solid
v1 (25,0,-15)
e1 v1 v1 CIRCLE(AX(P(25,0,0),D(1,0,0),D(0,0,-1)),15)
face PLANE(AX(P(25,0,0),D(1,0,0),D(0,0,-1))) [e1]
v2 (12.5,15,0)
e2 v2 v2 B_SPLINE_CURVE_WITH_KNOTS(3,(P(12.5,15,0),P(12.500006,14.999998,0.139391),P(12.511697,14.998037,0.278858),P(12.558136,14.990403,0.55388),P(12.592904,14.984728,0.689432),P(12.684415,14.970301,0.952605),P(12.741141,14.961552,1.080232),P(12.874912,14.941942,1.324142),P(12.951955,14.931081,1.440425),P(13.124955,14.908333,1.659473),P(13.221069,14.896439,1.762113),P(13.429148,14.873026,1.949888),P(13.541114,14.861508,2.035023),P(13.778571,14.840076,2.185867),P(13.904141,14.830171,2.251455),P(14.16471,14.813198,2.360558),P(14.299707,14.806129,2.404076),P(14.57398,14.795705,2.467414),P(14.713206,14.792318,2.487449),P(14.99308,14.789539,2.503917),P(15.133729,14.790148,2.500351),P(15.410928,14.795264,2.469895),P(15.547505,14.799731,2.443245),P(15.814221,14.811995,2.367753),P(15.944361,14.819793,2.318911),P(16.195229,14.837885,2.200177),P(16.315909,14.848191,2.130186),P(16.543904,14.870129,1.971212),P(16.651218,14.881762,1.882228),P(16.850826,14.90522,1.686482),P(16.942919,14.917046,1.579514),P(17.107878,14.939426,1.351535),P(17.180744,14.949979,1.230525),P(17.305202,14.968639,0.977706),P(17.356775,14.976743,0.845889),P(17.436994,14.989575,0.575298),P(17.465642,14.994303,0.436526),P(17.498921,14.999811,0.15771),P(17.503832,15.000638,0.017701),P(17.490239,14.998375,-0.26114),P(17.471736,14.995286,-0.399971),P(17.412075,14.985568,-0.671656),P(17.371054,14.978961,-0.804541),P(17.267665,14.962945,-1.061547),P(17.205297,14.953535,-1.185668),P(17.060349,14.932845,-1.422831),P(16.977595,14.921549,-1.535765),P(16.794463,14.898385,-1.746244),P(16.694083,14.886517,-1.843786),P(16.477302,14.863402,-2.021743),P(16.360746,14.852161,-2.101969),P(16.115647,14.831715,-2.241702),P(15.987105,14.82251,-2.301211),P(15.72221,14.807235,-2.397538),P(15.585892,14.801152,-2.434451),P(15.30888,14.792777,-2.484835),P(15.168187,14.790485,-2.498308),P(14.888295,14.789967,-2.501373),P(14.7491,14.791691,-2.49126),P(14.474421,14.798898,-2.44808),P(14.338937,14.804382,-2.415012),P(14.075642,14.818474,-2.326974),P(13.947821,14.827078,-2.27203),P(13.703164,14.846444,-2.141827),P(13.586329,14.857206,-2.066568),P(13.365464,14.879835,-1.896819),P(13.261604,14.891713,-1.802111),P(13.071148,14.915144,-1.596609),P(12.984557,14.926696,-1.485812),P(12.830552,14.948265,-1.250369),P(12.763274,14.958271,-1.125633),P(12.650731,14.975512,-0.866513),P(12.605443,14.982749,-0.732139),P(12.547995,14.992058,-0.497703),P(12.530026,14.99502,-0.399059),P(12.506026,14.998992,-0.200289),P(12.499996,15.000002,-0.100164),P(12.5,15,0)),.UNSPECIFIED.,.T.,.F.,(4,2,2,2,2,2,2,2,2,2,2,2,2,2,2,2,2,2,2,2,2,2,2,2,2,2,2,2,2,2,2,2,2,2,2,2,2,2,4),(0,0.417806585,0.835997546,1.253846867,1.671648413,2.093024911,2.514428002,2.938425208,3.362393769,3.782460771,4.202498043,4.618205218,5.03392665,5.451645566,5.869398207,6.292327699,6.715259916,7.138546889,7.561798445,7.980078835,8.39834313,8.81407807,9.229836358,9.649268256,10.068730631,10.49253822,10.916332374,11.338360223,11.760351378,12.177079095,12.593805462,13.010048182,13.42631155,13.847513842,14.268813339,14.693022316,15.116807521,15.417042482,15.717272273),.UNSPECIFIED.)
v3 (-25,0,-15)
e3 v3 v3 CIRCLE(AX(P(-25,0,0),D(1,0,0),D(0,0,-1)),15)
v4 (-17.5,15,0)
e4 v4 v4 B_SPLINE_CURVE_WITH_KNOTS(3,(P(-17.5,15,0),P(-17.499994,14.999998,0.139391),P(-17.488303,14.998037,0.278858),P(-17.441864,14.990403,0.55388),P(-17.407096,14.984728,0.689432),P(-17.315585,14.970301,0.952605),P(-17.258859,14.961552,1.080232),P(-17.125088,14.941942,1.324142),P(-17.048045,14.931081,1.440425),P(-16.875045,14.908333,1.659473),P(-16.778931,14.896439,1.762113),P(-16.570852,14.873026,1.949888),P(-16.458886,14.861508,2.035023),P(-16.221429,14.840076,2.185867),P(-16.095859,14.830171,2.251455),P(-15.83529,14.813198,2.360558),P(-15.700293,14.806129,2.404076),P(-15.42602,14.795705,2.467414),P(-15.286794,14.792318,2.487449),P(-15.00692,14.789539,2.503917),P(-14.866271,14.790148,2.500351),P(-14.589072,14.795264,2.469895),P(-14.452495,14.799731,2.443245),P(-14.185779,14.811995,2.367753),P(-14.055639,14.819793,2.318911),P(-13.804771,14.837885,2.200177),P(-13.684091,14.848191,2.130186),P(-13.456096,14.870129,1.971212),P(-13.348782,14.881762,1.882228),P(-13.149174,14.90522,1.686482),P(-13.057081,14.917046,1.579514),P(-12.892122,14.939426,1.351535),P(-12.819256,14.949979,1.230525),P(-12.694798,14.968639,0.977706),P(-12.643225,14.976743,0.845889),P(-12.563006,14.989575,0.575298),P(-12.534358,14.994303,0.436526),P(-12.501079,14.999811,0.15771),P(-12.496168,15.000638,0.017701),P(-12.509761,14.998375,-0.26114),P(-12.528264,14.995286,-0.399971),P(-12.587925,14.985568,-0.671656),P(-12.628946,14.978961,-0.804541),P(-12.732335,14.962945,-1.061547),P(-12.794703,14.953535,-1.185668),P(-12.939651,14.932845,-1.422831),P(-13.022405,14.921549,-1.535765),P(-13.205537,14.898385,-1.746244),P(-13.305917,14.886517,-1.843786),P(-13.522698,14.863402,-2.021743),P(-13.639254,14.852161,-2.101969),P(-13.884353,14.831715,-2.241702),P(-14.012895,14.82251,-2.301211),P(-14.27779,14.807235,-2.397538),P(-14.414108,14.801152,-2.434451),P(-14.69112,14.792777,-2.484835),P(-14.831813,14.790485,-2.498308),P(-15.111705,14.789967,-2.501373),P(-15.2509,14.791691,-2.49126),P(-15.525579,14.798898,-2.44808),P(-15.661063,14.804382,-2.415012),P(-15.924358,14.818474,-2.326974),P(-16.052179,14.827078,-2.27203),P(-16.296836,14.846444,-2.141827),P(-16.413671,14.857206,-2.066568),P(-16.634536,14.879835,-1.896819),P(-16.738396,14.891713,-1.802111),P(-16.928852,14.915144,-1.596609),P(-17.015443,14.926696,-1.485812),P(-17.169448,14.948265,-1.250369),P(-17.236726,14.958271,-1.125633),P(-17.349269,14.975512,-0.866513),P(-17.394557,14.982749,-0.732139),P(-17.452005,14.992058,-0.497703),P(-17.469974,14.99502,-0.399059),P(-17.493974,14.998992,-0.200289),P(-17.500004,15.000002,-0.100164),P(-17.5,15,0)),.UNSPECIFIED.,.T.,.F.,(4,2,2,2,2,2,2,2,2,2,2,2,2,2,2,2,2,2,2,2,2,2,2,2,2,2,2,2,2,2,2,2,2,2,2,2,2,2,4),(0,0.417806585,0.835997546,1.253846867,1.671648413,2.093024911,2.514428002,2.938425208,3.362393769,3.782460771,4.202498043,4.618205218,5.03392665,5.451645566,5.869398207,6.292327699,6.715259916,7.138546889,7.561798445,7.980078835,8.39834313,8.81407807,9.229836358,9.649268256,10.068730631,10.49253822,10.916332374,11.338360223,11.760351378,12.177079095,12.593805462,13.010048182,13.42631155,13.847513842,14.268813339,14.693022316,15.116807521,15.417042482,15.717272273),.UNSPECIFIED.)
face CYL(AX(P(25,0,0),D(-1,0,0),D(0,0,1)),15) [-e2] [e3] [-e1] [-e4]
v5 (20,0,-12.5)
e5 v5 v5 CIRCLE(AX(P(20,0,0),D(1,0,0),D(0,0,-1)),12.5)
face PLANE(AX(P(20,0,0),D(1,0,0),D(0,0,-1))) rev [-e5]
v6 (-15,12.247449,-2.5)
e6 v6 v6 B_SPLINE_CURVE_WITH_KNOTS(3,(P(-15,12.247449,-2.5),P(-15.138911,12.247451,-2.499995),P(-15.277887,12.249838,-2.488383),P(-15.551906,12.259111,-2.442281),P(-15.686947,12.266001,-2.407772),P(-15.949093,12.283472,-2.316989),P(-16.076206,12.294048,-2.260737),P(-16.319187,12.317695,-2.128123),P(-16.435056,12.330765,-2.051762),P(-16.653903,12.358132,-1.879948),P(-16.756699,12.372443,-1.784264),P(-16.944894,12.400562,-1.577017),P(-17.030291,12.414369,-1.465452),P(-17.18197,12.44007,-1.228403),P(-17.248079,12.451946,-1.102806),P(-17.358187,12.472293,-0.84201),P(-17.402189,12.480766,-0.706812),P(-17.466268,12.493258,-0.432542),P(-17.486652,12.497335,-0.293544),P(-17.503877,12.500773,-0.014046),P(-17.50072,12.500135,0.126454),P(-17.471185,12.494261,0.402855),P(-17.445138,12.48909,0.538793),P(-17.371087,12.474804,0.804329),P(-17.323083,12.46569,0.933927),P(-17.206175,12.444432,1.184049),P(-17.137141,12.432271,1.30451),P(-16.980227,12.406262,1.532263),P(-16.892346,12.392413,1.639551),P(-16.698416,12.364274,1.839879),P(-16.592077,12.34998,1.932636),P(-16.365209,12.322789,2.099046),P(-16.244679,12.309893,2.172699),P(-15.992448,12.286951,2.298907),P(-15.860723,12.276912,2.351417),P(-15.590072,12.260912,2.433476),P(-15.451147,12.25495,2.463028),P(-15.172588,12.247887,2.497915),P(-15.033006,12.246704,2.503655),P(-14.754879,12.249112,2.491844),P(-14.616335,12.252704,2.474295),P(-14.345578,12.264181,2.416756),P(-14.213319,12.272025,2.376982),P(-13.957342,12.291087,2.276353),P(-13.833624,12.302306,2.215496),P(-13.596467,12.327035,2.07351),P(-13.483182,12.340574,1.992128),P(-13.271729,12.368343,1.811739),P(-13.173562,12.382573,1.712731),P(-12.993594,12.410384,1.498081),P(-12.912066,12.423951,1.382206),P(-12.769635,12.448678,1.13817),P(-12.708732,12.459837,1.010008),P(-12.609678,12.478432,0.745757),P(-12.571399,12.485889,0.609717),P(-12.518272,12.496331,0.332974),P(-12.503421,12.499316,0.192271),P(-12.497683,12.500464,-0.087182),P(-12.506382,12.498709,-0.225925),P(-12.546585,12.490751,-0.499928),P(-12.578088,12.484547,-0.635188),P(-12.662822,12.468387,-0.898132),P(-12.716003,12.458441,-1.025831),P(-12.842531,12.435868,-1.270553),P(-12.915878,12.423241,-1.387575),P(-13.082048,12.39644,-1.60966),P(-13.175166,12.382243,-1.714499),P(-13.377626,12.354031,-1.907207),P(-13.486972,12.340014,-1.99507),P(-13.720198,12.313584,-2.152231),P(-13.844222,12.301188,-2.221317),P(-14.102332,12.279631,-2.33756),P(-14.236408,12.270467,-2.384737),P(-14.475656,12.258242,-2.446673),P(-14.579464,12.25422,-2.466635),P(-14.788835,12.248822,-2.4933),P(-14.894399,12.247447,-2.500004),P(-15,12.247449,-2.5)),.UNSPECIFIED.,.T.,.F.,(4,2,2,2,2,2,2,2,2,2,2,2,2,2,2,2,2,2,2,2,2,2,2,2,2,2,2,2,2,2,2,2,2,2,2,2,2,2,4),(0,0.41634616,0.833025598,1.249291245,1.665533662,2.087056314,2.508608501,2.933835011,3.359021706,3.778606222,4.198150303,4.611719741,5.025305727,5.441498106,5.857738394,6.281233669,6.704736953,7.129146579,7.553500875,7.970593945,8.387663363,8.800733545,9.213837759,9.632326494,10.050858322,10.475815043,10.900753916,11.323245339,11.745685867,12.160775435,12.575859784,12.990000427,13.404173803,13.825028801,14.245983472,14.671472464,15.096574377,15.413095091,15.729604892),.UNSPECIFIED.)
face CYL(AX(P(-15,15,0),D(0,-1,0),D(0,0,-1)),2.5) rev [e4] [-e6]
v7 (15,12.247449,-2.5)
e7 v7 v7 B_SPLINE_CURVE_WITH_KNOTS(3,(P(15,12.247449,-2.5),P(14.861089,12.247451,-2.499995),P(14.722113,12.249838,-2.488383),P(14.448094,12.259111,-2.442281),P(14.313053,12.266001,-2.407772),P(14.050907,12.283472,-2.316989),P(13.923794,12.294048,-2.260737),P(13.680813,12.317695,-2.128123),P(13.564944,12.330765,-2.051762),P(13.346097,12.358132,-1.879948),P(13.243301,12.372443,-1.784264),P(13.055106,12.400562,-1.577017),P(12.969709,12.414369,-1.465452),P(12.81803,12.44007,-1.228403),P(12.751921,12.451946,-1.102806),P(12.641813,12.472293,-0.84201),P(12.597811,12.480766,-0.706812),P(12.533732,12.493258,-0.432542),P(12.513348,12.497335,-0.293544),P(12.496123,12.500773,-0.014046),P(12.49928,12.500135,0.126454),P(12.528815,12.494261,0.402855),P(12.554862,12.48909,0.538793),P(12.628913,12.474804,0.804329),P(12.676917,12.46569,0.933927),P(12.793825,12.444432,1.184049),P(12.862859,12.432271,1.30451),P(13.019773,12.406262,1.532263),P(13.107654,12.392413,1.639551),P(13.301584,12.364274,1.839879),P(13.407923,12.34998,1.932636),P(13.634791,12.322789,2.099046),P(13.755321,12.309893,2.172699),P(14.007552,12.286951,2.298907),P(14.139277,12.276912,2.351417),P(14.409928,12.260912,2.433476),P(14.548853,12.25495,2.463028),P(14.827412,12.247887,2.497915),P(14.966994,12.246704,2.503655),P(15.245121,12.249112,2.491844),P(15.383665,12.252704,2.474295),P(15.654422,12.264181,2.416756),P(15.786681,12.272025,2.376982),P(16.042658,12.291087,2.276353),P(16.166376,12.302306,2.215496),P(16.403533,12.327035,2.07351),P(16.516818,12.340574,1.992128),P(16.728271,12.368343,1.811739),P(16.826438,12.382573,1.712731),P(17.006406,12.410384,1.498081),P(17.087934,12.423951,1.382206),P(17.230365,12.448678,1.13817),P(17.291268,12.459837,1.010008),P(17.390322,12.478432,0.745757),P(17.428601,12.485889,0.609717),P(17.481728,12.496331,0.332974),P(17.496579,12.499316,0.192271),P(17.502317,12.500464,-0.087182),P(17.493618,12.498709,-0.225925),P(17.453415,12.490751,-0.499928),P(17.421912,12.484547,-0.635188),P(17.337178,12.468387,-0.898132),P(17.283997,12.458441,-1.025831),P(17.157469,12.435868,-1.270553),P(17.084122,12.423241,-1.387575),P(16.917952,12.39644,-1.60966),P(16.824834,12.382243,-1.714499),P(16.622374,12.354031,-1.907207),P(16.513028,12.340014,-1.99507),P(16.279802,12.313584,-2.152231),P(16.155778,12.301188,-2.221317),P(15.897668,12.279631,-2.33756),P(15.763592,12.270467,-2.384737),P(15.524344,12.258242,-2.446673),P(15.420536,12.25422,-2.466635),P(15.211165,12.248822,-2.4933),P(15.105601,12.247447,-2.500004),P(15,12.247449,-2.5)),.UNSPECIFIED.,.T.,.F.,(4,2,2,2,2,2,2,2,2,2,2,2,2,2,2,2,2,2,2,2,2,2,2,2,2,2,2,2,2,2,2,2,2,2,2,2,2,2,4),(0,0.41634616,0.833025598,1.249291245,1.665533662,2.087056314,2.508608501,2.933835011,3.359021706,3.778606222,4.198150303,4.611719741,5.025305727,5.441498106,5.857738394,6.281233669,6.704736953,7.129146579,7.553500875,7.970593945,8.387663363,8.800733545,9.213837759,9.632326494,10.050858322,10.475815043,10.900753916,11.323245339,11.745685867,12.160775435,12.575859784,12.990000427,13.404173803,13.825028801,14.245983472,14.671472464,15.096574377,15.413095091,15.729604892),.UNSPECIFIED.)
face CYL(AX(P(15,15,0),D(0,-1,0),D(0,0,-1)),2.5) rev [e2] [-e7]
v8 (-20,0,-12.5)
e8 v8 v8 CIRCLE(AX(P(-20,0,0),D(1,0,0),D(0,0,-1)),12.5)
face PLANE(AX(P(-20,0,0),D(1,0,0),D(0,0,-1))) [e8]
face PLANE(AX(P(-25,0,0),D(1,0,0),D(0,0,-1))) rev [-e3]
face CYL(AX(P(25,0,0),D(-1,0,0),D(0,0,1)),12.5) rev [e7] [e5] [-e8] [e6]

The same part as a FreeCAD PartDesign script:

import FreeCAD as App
import Part
import Sketcher

doc = App.newDocument("Part")
body = doc.addObject("PartDesign::Body", "Body")

# Sketch on YZ plane
sketch1 = doc.addObject("Sketcher::SketchObject", "Sketch")
body.addObject(sketch1)
sketch1.AttachmentSupport = (doc.YZ_Plane, [""])
sketch1.MapMode = "FlatFace"
sketch1.addGeometry(Part.Circle(App.Vector(0, 0, 0), App.Vector(0, 0, 1), 15), False)
sketch1.addGeometry(Part.Circle(App.Vector(0, 0, 0), App.Vector(0, 0, 1), 12.5), False)
sketch1.addConstraint(Sketcher.Constraint("Coincident", 0, 3, -1, 1))
sketch1.addConstraint(Sketcher.Constraint("Coincident", 1, 3, -1, 1))
sketch1.addConstraint(Sketcher.Constraint("Diameter", 0, 30.0))
sketch1.addConstraint(Sketcher.Constraint("Diameter", 1, 25.0))
pad1 = doc.addObject("PartDesign::Pad", "Pad")
body.addObject(pad1)
pad1.Profile = sketch1
pad1.Length = 50
pad1.Midplane = True

# Sketch on YZ plane
sketch2 = doc.addObject("Sketcher::SketchObject", "Sketch001")
body.addObject(sketch2)
sketch2.AttachmentSupport = (doc.YZ_Plane, [""])
sketch2.MapMode = "FlatFace"
sketch2.AttachmentOffset = App.Placement(App.Vector(0, 0, 20), App.Rotation())
sketch2.addGeometry(Part.Circle(App.Vector(0, 0, 0), App.Vector(0, 0, 1), 12.5), False)
sketch2.addConstraint(Sketcher.Constraint("Coincident", 0, 3, -1, 1))
sketch2.addConstraint(Sketcher.Constraint("Diameter", 0, 25.0))
pad2 = doc.addObject("PartDesign::Pad", "Pad001")
body.addObject(pad2)
pad2.Profile = sketch2
pad2.Length = 5

# Sketch on YZ plane
sketch3 = doc.addObject("Sketcher::SketchObject", "Sketch002")
body.addObject(sketch3)
sketch3.AttachmentSupport = (doc.YZ_Plane, [""])
sketch3.MapMode = "FlatFace"
sketch3.AttachmentOffset = App.Placement(App.Vector(0, 0, -20), App.Rotation())
sketch3.addGeometry(Part.Circle(App.Vector(0, 0, 0), App.Vector(0, 0, 1), 12.5), False)
sketch3.addConstraint(Sketcher.Constraint("Coincident", 0, 3, -1, 1))
sketch3.addConstraint(Sketcher.Constraint("Diameter", 0, 25.0))
pad3 = doc.addObject("PartDesign::Pad", "Pad002")
body.addObject(pad3)
pad3.Profile = sketch3
pad3.Length = 5
pad3.Reversed = True

# Sketch on XZ plane
sketch4 = doc.addObject("Sketcher::SketchObject", "Sketch003")
body.addObject(sketch4)
sketch4.AttachmentSupport = (doc.XZ_Plane, [""])
sketch4.MapMode = "FlatFace"
sketch4.addGeometry(Part.Circle(App.Vector(-15, 0, 0), App.Vector(0, 0, 1), 2.5), False)
sketch4.addGeometry(Part.Circle(App.Vector(15, 0, 0), App.Vector(0, 0, 1), 2.5), False)
sketch4.addConstraint(Sketcher.Constraint("Equal", 0, 1))
sketch4.addConstraint(Sketcher.Constraint("Symmetric", 0, 3, 1, 3, -1, 1))
sketch4.addConstraint(Sketcher.Constraint("PointOnObject", 0, 3, -1))
sketch4.addConstraint(Sketcher.Constraint("Diameter", 0, 5.0))
sketch4.addConstraint(Sketcher.Constraint("DistanceX", 0, 3, -1, 1, 15.0))
pocket1 = doc.addObject("PartDesign::Pocket", "Pocket")
body.addObject(pocket1)
pocket1.Profile = sketch4
pocket1.Type = "ThroughAll"

doc.recompute()
